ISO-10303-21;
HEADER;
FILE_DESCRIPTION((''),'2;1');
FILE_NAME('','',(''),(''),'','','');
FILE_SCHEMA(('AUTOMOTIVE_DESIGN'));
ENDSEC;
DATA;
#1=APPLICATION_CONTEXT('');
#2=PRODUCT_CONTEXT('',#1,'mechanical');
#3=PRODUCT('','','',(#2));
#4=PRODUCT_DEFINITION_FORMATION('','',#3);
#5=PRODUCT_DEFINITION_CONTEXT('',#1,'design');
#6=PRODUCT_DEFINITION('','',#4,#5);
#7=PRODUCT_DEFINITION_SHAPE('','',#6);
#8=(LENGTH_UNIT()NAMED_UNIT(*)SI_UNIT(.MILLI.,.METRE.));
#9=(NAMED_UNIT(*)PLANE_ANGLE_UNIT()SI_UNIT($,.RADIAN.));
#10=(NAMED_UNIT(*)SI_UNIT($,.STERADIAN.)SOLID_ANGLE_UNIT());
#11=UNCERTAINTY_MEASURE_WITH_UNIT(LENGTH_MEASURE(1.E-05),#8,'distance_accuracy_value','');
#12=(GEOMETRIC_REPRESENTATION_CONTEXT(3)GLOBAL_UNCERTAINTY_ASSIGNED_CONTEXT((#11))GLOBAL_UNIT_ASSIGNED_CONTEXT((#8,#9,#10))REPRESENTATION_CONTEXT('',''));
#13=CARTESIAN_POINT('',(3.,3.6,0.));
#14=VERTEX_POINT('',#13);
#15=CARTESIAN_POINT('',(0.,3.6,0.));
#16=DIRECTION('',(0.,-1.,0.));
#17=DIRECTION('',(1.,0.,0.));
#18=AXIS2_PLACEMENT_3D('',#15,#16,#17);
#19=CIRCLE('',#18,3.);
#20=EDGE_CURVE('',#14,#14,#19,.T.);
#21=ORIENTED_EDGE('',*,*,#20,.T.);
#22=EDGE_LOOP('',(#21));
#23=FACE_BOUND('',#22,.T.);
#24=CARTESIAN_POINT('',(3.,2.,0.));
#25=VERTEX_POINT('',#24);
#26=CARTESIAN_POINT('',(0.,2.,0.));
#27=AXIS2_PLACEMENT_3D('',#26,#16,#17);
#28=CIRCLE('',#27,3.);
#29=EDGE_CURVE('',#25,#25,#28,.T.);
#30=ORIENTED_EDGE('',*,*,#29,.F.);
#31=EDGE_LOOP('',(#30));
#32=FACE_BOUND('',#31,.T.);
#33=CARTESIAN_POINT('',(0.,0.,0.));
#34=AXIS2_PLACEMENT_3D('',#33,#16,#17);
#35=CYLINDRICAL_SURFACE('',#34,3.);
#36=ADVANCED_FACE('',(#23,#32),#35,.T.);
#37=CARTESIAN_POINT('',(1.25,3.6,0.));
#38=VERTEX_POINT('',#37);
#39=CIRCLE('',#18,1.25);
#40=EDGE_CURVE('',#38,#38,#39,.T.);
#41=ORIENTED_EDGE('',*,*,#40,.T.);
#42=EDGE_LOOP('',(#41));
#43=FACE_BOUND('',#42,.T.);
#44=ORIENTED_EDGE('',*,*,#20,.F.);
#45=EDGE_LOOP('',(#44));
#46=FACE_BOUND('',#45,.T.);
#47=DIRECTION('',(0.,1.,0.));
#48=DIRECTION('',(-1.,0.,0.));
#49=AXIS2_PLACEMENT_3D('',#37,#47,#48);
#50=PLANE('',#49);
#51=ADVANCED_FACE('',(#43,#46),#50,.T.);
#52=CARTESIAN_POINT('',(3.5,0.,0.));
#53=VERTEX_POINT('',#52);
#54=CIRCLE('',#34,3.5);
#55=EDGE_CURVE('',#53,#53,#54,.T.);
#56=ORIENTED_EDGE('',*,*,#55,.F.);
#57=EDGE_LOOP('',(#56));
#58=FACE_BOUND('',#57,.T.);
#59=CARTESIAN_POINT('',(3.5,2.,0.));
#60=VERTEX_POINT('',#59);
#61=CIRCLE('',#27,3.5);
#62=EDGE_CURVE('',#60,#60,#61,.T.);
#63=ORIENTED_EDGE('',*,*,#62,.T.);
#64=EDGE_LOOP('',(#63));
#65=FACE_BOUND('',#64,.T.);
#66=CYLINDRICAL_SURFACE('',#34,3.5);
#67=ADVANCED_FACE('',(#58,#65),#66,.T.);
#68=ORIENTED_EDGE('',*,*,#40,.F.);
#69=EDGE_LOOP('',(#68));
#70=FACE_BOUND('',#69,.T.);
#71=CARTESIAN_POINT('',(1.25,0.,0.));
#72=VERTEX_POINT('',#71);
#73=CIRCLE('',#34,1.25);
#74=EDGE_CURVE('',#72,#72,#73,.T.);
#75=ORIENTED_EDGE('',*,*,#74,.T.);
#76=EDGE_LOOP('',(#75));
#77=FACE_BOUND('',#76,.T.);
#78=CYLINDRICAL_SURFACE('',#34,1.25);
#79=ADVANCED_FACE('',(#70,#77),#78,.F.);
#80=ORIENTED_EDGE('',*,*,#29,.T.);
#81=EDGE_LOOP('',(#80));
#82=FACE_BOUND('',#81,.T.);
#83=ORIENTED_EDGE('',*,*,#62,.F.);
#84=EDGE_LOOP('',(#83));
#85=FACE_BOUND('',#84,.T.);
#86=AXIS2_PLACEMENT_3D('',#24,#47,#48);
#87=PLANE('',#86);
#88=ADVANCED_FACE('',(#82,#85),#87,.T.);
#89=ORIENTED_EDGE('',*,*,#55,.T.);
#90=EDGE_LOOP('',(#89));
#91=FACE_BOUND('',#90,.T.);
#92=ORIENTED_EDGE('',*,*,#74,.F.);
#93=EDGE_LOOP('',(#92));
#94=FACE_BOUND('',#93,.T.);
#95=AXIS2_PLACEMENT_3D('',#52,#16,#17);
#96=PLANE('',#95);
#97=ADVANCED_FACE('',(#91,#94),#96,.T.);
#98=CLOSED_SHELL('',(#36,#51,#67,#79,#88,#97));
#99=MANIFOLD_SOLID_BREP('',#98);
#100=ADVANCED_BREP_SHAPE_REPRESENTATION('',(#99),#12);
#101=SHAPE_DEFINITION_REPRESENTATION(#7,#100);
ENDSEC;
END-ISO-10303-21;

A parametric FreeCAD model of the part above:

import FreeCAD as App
import Part
import Sketcher


def add_polygon(sketch, points):
    """Adds a closed chain of lines whose ends are joined by coincident constraints."""
    first, n = sketch.GeometryCount, len(points)
    for a, b in zip(points, points[1:] + points[:1]):
        sketch.addGeometry(Part.LineSegment(App.Vector(*a, 0), App.Vector(*b, 0)), False)
    for i in range(n):
        sketch.addConstraint(Sketcher.Constraint("Coincident", first + i, 2, first + (i + 1) % n, 1))

doc = App.newDocument("Part")
params = doc.addObject("Spreadsheet::Sheet", "Params")
for row, (alias, value) in enumerate([
    ("sketch1_height", "2 mm"),
    ("sketch1_width", "0.5 mm"),
    ("sketch1_height2", "3.6 mm"),
    ("sketch1_width2", "2.25 mm"),
    ("revolution_angle", "360 deg"),
], start=1):
    params.set(f"A{row}", alias)
    params.set(f"B{row}", "=" + value)
    params.setAlias(f"B{row}", alias)

body = doc.addObject("PartDesign::Body", "Body")

# Sketch on XY plane
sketch1 = body.newObject("Sketcher::SketchObject", "Sketch")
sketch1.AttachmentSupport = (doc.getObject("XY_Plane"), [""])
sketch1.MapMode = "FlatFace"
add_polygon(sketch1, [(1.2, 3.6), (1.2, 0), (3.5, 0), (3.5, 2), (3, 2), (3, 3.6)])  # lines 0-5
sketch1.addConstraint([
    Sketcher.Constraint("Vertical", 0),
    Sketcher.Constraint("Horizontal", 1),
    Sketcher.Constraint("Vertical", 2),
    Sketcher.Constraint("Horizontal", 3),
    Sketcher.Constraint("Vertical", 4),
    Sketcher.Constraint("Horizontal", 5),
    Sketcher.Constraint("PointOnObject", 0, 2, -1),
    Sketcher.Constraint("DistanceY", 2, 1, 2, 2, 2.0),
    Sketcher.Constraint("DistanceX", 3, 2, 3, 1, 0.5),
    Sketcher.Constraint("DistanceY", 0, 2, 0, 1, 3.6),
    Sketcher.Constraint("DistanceX", -1, 1, 3, 2, 3.0),
    Sketcher.Constraint("DistanceX", 1, 1, 1, 2, 2.25),
])
sketch1.setExpression("Constraints[13]", "Params.sketch1_height")
sketch1.setExpression("Constraints[14]", "Params.sketch1_width")
sketch1.setExpression("Constraints[15]", "Params.sketch1_height2")
sketch1.setExpression("Constraints[17]", "Params.sketch1_width2")
revolution = body.newObject("PartDesign::Revolution", "Revolution")
revolution.Profile = sketch1
revolution.ReferenceAxis = (sketch1, ["V_Axis"])
revolution.setExpression("Angle", "Params.revolution_angle")

doc.recompute()
